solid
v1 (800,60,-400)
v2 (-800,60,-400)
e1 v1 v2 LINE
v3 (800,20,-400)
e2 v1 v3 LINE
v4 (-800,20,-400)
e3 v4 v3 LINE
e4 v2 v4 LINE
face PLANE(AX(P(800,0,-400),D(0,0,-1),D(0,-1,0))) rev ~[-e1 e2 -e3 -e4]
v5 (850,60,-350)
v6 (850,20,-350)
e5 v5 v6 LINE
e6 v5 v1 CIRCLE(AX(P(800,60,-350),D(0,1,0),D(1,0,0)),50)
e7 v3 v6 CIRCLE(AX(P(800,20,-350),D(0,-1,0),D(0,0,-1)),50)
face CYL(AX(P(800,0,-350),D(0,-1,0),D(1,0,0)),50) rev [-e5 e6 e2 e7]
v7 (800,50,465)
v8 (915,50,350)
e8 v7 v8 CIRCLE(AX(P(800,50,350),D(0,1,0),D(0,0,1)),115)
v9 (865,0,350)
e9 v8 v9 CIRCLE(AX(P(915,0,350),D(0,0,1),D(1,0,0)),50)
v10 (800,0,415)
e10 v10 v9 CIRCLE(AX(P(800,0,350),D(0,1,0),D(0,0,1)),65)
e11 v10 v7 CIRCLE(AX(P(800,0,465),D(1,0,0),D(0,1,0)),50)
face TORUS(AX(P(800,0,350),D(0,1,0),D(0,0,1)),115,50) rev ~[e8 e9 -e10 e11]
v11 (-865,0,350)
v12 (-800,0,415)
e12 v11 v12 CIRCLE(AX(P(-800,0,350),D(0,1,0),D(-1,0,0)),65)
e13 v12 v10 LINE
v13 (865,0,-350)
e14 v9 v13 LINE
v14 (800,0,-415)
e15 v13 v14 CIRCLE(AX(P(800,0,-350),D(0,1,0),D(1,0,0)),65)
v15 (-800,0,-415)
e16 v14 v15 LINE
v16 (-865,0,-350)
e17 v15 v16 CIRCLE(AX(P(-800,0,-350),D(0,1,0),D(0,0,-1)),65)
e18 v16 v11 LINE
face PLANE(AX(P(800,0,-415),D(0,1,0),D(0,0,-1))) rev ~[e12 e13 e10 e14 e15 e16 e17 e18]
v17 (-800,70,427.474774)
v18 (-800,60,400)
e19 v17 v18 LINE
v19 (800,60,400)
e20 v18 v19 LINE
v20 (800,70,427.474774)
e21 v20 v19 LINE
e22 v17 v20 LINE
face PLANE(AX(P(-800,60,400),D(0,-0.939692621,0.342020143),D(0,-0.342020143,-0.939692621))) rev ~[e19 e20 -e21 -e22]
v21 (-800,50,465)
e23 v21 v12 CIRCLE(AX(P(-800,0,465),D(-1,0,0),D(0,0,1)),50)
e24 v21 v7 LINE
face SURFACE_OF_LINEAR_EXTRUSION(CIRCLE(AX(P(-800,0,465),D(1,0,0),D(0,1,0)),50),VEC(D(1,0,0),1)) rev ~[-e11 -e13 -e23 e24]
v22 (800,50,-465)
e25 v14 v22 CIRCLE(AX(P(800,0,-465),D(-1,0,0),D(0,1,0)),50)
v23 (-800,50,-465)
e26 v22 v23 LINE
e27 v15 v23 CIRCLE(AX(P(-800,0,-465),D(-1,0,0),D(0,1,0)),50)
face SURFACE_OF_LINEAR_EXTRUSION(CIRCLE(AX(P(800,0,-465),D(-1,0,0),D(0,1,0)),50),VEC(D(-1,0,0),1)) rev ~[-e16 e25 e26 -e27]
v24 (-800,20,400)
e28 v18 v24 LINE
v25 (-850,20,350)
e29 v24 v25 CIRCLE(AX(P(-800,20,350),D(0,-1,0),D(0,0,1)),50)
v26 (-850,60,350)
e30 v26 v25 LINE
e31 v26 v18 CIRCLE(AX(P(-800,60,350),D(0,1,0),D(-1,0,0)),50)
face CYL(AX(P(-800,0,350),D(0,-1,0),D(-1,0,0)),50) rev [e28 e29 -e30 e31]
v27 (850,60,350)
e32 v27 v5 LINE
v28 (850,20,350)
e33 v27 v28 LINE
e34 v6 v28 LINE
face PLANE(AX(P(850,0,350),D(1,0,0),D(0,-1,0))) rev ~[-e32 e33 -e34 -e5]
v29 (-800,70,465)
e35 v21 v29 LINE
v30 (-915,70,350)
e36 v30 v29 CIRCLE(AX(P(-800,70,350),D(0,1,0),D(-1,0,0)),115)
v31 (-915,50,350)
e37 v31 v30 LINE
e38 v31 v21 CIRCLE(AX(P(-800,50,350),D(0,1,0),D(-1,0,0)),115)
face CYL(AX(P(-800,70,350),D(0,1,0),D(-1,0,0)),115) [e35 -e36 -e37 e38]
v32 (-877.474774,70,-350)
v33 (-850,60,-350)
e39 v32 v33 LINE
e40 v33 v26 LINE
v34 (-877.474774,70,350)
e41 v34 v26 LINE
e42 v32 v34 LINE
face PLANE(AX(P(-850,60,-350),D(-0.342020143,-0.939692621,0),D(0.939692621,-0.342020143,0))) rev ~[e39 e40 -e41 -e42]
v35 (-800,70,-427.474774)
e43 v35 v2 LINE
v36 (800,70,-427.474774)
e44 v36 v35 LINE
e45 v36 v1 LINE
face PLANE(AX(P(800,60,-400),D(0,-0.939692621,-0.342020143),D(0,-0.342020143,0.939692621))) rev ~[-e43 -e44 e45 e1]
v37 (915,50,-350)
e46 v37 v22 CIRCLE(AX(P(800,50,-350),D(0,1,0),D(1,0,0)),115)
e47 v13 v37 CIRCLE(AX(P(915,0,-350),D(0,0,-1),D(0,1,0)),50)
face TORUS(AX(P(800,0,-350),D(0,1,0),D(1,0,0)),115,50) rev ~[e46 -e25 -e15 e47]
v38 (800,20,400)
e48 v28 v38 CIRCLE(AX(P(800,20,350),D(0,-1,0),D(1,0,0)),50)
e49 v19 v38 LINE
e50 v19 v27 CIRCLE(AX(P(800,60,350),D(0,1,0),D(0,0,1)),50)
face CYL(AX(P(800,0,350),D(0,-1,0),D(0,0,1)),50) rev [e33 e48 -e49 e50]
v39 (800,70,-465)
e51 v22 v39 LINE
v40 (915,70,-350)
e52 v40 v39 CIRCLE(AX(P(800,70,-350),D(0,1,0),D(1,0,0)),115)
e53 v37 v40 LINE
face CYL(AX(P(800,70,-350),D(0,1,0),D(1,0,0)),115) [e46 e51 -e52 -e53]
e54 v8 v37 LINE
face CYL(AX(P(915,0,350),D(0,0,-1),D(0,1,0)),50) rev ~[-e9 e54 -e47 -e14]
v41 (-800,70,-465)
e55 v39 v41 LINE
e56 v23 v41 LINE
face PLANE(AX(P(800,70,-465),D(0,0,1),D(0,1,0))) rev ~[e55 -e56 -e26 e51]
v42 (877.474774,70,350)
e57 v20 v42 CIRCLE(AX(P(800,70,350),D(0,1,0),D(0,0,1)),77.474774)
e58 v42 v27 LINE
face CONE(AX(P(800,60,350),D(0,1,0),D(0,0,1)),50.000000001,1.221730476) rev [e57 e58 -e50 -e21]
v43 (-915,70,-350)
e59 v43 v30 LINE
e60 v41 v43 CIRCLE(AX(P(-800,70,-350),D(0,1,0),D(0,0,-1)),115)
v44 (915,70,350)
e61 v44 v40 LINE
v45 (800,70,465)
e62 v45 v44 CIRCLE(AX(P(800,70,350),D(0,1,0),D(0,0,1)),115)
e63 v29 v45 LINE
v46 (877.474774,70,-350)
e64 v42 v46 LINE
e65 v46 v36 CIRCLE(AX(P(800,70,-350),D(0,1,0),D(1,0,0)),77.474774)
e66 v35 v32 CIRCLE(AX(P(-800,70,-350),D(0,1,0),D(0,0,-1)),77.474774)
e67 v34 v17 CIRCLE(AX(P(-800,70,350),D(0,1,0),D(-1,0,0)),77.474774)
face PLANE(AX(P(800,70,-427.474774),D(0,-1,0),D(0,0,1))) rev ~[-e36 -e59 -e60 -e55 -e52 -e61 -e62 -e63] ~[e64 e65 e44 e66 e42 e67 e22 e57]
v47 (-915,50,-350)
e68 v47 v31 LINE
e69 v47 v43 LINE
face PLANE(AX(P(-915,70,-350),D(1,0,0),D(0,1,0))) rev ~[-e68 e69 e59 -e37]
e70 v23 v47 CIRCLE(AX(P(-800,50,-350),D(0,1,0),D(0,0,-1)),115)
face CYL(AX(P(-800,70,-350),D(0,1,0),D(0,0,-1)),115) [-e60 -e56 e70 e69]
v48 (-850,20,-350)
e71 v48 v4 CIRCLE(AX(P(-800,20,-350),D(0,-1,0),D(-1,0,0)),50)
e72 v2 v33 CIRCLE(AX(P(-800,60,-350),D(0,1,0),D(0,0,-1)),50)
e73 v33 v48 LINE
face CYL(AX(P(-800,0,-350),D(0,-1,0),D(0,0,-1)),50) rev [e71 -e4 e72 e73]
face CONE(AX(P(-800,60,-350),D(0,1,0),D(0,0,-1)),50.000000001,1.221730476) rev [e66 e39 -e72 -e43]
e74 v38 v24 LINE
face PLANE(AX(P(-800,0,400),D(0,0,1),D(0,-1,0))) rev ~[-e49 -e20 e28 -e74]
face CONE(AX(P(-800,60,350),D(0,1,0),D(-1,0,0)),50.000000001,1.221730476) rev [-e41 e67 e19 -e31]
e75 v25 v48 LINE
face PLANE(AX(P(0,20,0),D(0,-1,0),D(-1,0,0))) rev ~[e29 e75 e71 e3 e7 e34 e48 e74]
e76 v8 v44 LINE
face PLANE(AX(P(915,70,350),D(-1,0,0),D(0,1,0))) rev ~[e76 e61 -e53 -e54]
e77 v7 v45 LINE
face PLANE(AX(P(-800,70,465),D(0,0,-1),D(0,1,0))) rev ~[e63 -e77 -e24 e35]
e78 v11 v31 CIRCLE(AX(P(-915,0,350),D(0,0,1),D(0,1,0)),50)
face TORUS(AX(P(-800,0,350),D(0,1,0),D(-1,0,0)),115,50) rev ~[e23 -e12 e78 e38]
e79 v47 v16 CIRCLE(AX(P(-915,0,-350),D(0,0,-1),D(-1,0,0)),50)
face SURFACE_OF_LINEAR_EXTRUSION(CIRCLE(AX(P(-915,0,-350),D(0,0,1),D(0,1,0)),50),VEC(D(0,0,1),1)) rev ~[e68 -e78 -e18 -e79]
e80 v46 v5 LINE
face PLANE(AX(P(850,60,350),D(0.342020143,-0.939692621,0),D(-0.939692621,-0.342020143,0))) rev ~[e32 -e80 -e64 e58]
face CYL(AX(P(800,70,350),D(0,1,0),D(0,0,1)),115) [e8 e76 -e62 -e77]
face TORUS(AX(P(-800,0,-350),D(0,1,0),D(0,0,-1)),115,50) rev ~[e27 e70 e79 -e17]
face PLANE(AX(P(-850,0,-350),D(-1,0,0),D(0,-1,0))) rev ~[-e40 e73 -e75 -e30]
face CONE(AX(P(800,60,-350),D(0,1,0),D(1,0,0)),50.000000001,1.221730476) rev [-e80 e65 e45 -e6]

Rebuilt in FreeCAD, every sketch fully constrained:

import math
import FreeCAD as App
import Part
import Sketcher
Q = App.Units.Quantity

doc = App.newDocument("Part")
body = doc.addObject("PartDesign::Body", "Body")

# Sketch on XZ plane
sketch1 = doc.addObject("Sketcher::SketchObject", "Sketch")
body.addObject(sketch1)
sketch1.AttachmentSupport = (doc.XZ_Plane, [""])
sketch1.MapMode = "FlatFace"
sketch1.addGeometry(Part.LineSegment(App.Vector(800, -400, 0), App.Vector(-800, -400, 0)), False)
sketch1.addGeometry(Part.ArcOfCircle(Part.Circle(App.Vector(-800, -350, 0), App.Vector(0, 0, 1), 50), math.radians(-180), math.radians(-90)), False)
sketch1.addGeometry(Part.LineSegment(App.Vector(-850, -350, 0), App.Vector(-850, 350, 0)), False)
sketch1.addGeometry(Part.ArcOfCircle(Part.Circle(App.Vector(-800, 350, 0), App.Vector(0, 0, 1), 50), math.radians(90), math.radians(180)), False)
sketch1.addGeometry(Part.LineSegment(App.Vector(-800, 400, 0), App.Vector(800, 400, 0)), False)
sketch1.addGeometry(Part.ArcOfCircle(Part.Circle(App.Vector(800, 350, 0), App.Vector(0, 0, 1), 50), math.radians(0), math.radians(90)), False)
sketch1.addGeometry(Part.LineSegment(App.Vector(850, 350, 0), App.Vector(850, -350, 0)), False)
sketch1.addGeometry(Part.ArcOfCircle(Part.Circle(App.Vector(800, -350, 0), App.Vector(0, 0, 1), 50), math.radians(-90), math.radians(0)), False)
sketch1.addConstraint(Sketcher.Constraint("Tangent", 0, 2, 1, 2))
sketch1.addConstraint(Sketcher.Constraint("Tangent", 1, 1, 2, 1))
sketch1.addConstraint(Sketcher.Constraint("Tangent", 2, 2, 3, 2))
sketch1.addConstraint(Sketcher.Constraint("Tangent", 3, 1, 4, 1))
sketch1.addConstraint(Sketcher.Constraint("Tangent", 4, 2, 5, 2))
sketch1.addConstraint(Sketcher.Constraint("Tangent", 5, 1, 6, 1))
sketch1.addConstraint(Sketcher.Constraint("Tangent", 6, 2, 7, 2))
sketch1.addConstraint(Sketcher.Constraint("Tangent", 7, 1, 0, 1))
sketch1.addConstraint(Sketcher.Constraint("Horizontal", 0))
sketch1.addConstraint(Sketcher.Constraint("Vertical", 2))
sketch1.addConstraint(Sketcher.Constraint("Horizontal", 4))
sketch1.addConstraint(Sketcher.Constraint("Vertical", 6))
sketch1.addConstraint(Sketcher.Constraint("Equal", 1, 3))
sketch1.addConstraint(Sketcher.Constraint("Equal", 3, 5))
sketch1.addConstraint(Sketcher.Constraint("Equal", 5, 7))
sketch1.addConstraint(Sketcher.Constraint("Symmetric", 1, 3, 5, 3, -1, 1))
sketch1.addConstraint(Sketcher.Constraint("Radius", 1, 50.0))
sketch1.addConstraint(Sketcher.Constraint("DistanceX", 0, 2, 0, 1, 1600.0))
sketch1.addConstraint(Sketcher.Constraint("DistanceY", 2, 1, 2, 2, 700.0))
pad1 = doc.addObject("PartDesign::Pad", "Pad")
body.addObject(pad1)
pad1.Profile = sketch1
pad1.Length = 20
pad1.Reversed = True

# Sketch on XY plane
sketch2 = doc.addObject("Sketcher::SketchObject", "Sketch001")
body.addObject(sketch2)
sketch2.AttachmentSupport = (doc.XY_Plane, [""])
sketch2.MapMode = "FlatFace"
sketch2.AttachmentOffset = App.Placement(App.Vector(0, 0, 350), App.Rotation())
sketch2.addGeometry(Part.LineSegment(App.Vector(850, 60, 0), App.Vector(850, 0, 0)), False)
sketch2.addGeometry(Part.LineSegment(App.Vector(850, 0, 0), App.Vector(865, 0, 0)), False)
sketch2.addGeometry(Part.ArcOfCircle(Part.Circle(App.Vector(915, 0, 0), App.Vector(0, 0, 1), 50), math.radians(90), math.radians(180)), False)
sketch2.addGeometry(Part.LineSegment(App.Vector(915, 50, 0), App.Vector(915, 70, 0)), False)
sketch2.addGeometry(Part.LineSegment(App.Vector(915, 70, 0), App.Vector(877.474774, 70, 0)), False)
sketch2.addGeometry(Part.LineSegment(App.Vector(877.474774, 70, 0), App.Vector(850, 60, 0)), False)
sketch2.addConstraint(Sketcher.Constraint("Coincident", 0, 2, 1, 1))
sketch2.addConstraint(Sketcher.Constraint("Coincident", 1, 2, 2, 2))
sketch2.addConstraint(Sketcher.Constraint("Coincident", 2, 1, 3, 1))
sketch2.addConstraint(Sketcher.Constraint("Coincident", 3, 2, 4, 1))
sketch2.addConstraint(Sketcher.Constraint("Coincident", 4, 2, 5, 1))
sketch2.addConstraint(Sketcher.Constraint("Coincident", 5, 2, 0, 1))
sketch2.addConstraint(Sketcher.Constraint("Vertical", 0))
sketch2.addConstraint(Sketcher.Constraint("Horizontal", 1))
sketch2.addConstraint(Sketcher.Constraint("Vertical", 3))
sketch2.addConstraint(Sketcher.Constraint("Horizontal", 4))
sketch2.addConstraint(Sketcher.Constraint("PointOnObject", 2, 3, -1))
sketch2.addConstraint(Sketcher.Constraint("PointOnObject", 0, 2, -1))
sketch2.addConstraint(Sketcher.Constraint("Radius", 2, 50.0))
sketch2.addConstraint(Sketcher.Constraint("DistanceX", 1, 1, 1, 2, 15.0))
sketch2.addConstraint(Sketcher.Constraint("DistanceY", 0, 2, 0, 1, 60.0))
sketch2.addConstraint(Sketcher.Constraint("DistanceY", 3, 1, 3, 2, 20.0))
sketch2.addConstraint(Sketcher.Constraint("Angle", 5, Q("-160 deg")))
sketch2.addConstraint(Sketcher.Constraint("DistanceX", -1, 1, 2, 3, 915.0))
sketch2.addConstraint(Sketcher.Constraint("DistanceX", -1, 1, 2, 1, 915.0))

# Sketch on XZ plane
sketch3 = doc.addObject("Sketcher::SketchObject", "Sketch002")
body.addObject(sketch3)
sketch3.AttachmentSupport = (doc.XZ_Plane, [""])
sketch3.MapMode = "FlatFace"
sketch3.AttachmentOffset = App.Placement(App.Vector(0, 0, -20), App.Rotation())
sketch3.addGeometry(Part.LineSegment(App.Vector(800, -400, 0), App.Vector(-800, -400, 0)), False)
sketch3.addGeometry(Part.ArcOfCircle(Part.Circle(App.Vector(-800, -350, 0), App.Vector(0, 0, 1), 50), math.radians(-180), math.radians(-90)), False)
sketch3.addGeometry(Part.LineSegment(App.Vector(-850, -350, 0), App.Vector(-850, 350, 0)), False)
sketch3.addGeometry(Part.ArcOfCircle(Part.Circle(App.Vector(-800, 350, 0), App.Vector(0, 0, 1), 50), math.radians(90), math.radians(180)), False)
sketch3.addGeometry(Part.LineSegment(App.Vector(-800, 400, 0), App.Vector(800, 400, 0)), False)
sketch3.addGeometry(Part.ArcOfCircle(Part.Circle(App.Vector(800, 350, 0), App.Vector(0, 0, 1), 50), math.radians(0), math.radians(90)), False)
sketch3.addGeometry(Part.LineSegment(App.Vector(850, 350, 0), App.Vector(850, -350, 0)), False)
sketch3.addGeometry(Part.ArcOfCircle(Part.Circle(App.Vector(800, -350, 0), App.Vector(0, 0, 1), 50), math.radians(-90), math.radians(0)), False)
sketch3.addConstraint(Sketcher.Constraint("Tangent", 0, 2, 1, 2))
sketch3.addConstraint(Sketcher.Constraint("Tangent", 1, 1, 2, 1))
sketch3.addConstraint(Sketcher.Constraint("Tangent", 2, 2, 3, 2))
sketch3.addConstraint(Sketcher.Constraint("Tangent", 3, 1, 4, 1))
sketch3.addConstraint(Sketcher.Constraint("Tangent", 4, 2, 5, 2))
sketch3.addConstraint(Sketcher.Constraint("Tangent", 5, 1, 6, 1))
sketch3.addConstraint(Sketcher.Constraint("Tangent", 6, 2, 7, 2))
sketch3.addConstraint(Sketcher.Constraint("Tangent", 7, 1, 0, 1))
sketch3.addConstraint(Sketcher.Constraint("Horizontal", 0))
sketch3.addConstraint(Sketcher.Constraint("Vertical", 2))
sketch3.addConstraint(Sketcher.Constraint("Horizontal", 4))
sketch3.addConstraint(Sketcher.Constraint("Vertical", 6))
sketch3.addConstraint(Sketcher.Constraint("Equal", 1, 3))
sketch3.addConstraint(Sketcher.Constraint("Equal", 3, 5))
sketch3.addConstraint(Sketcher.Constraint("Equal", 5, 7))
sketch3.addConstraint(Sketcher.Constraint("Symmetric", 1, 3, 5, 3, -1, 1))
sketch3.addConstraint(Sketcher.Constraint("Radius", 1, 50.0))
sketch3.addConstraint(Sketcher.Constraint("DistanceX", 0, 2, 0, 1, 1600.0))
sketch3.addConstraint(Sketcher.Constraint("DistanceY", 2, 1, 2, 2, 700.0))
doc.recompute()

additivepipe = doc.addObject("PartDesign::AdditivePipe", "AdditivePipe")
body.addObject(additivepipe)
additivepipe.Profile = sketch2
additivepipe.Spine = (sketch3, ["Edge1", "Edge2", "Edge3", "Edge4", "Edge5", "Edge6", "Edge7", "Edge8"])

doc.recompute()
